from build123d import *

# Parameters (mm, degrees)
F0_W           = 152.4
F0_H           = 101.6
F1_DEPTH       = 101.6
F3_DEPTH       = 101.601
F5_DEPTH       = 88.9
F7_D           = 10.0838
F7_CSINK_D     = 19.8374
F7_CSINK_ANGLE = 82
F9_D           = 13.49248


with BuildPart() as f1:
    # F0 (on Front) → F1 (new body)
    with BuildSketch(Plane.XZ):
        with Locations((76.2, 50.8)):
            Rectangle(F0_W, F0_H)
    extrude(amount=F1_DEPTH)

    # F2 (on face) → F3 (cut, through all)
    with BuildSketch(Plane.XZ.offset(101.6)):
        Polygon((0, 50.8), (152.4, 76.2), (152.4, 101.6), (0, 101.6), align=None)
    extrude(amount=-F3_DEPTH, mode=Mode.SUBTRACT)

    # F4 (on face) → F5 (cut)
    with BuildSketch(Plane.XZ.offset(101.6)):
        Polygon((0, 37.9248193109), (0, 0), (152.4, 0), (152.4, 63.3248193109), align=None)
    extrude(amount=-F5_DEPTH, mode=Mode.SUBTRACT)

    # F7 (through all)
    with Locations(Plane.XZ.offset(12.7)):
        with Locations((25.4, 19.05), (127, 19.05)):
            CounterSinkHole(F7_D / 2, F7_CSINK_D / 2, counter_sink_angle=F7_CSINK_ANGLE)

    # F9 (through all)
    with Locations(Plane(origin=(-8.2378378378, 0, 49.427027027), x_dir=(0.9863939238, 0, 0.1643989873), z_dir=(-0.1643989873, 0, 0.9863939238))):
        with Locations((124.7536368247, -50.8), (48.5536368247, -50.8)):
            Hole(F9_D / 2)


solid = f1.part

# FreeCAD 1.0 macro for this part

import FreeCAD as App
import Part
import Sketcher
Q = App.Units.Quantity

doc = App.newDocument("Part")
body = doc.addObject("PartDesign::Body", "Body")

# Sketch on XZ plane
sketch1 = body.newObject("Sketcher::SketchObject", "Sketch")
sketch1.AttachmentSupport = (doc.getObject("XZ_Plane"), [""])
sketch1.MapMode = "FlatFace"
sketch1.addGeometry(Part.LineSegment(App.Vector(0, 102, 0), App.Vector(0, 0, 0)), False)
sketch1.addGeometry(Part.LineSegment(App.Vector(0, 0, 0), App.Vector(152, 0, 0)), False)
sketch1.addGeometry(Part.LineSegment(App.Vector(152, 0, 0), App.Vector(152, 102, 0)), False)
sketch1.addGeometry(Part.LineSegment(App.Vector(152, 102, 0), App.Vector(0, 102, 0)), False)
sketch1.addConstraint(Sketcher.Constraint("Coincident", 0, 2, 1, 1))
sketch1.addConstraint(Sketcher.Constraint("Coincident", 1, 2, 2, 1))
sketch1.addConstraint(Sketcher.Constraint("Coincident", 2, 2, 3, 1))
sketch1.addConstraint(Sketcher.Constraint("Coincident", 3, 2, 0, 1))
sketch1.addConstraint(Sketcher.Constraint("Vertical", 0))
sketch1.addConstraint(Sketcher.Constraint("Horizontal", 1))
sketch1.addConstraint(Sketcher.Constraint("Vertical", 2))
sketch1.addConstraint(Sketcher.Constraint("Horizontal", 3))
sketch1.addConstraint(Sketcher.Constraint("Coincident", 0, 2, -1, 1))
sketch1.addConstraint(Sketcher.Constraint("DistanceX", 1, 1, 1, 2, Q("6 in")))
sketch1.addConstraint(Sketcher.Constraint("DistanceY", 0, 2, 0, 1, Q("4 in")))
pad1 = body.newObject("PartDesign::Pad", "Pad")
pad1.Profile = sketch1
pad1.Length = Q("4 in")

# Sketch on XZ plane
sketch2 = body.newObject("Sketcher::SketchObject", "Sketch001")
sketch2.AttachmentSupport = (doc.getObject("XZ_Plane"), [""])
sketch2.MapMode = "FlatFace"
sketch2.AttachmentOffset = App.Placement(App.Vector(0, 0, 4 * 25.4), App.Rotation())
sketch2.addGeometry(Part.LineSegment(App.Vector(0, 51, 0), App.Vector(152, 76, 0)), False)
sketch2.addGeometry(Part.LineSegment(App.Vector(152, 76, 0), App.Vector(152, 102, 0)), False)
sketch2.addGeometry(Part.LineSegment(App.Vector(152, 102, 0), App.Vector(0, 102, 0)), False)
sketch2.addGeometry(Part.LineSegment(App.Vector(0, 102, 0), App.Vector(0, 51, 0)), False)
sketch2.addConstraint(Sketcher.Constraint("Coincident", 0, 2, 1, 1))
sketch2.addConstraint(Sketcher.Constraint("Coincident", 1, 2, 2, 1))
sketch2.addConstraint(Sketcher.Constraint("Coincident", 2, 2, 3, 1))
sketch2.addConstraint(Sketcher.Constraint("Coincident", 3, 2, 0, 1))
sketch2.addConstraint(Sketcher.Constraint("Vertical", 1))
sketch2.addConstraint(Sketcher.Constraint("Horizontal", 2))
sketch2.addConstraint(Sketcher.Constraint("Vertical", 3))
sketch2.addConstraint(Sketcher.Constraint("PointOnObject", 2, 2, -2))
sketch2.addConstraint(Sketcher.Constraint("DistanceX", 2, 2, 2, 1, Q("6 in")))
sketch2.addConstraint(Sketcher.Constraint("DistanceY", 1, 1, 1, 2, Q("1 in")))
sketch2.addConstraint(Sketcher.Constraint("DistanceY", 3, 2, 3, 1, Q("2 in")))
sketch2.addConstraint(Sketcher.Constraint("DistanceY", -1, 1, 0, 2, Q("3 in")))
pocket1 = body.newObject("PartDesign::Pocket", "Pocket")
pocket1.Profile = sketch2
pocket1.Type = "ThroughAll"

# Sketch on XZ plane
sketch3 = body.newObject("Sketcher::SketchObject", "Sketch002")
sketch3.AttachmentSupport = (doc.getObject("XZ_Plane"), [""])
sketch3.MapMode = "FlatFace"
sketch3.AttachmentOffset = App.Placement(App.Vector(0, 0, 4 * 25.4), App.Rotation())
sketch3.addGeometry(Part.LineSegment(App.Vector(0, 38, 0), App.Vector(0, 0, 0)), False)
sketch3.addGeometry(Part.LineSegment(App.Vector(0, 0, 0), App.Vector(152, 0, 0)), False)
sketch3.addGeometry(Part.LineSegment(App.Vector(152, 0, 0), App.Vector(152, 63, 0)), False)
sketch3.addGeometry(Part.LineSegment(App.Vector(152, 63, 0), App.Vector(0, 38, 0)), False)
sketch3.addConstraint(Sketcher.Constraint("Coincident", 0, 2, 1, 1))
sketch3.addConstraint(Sketcher.Constraint("Coincident", 1, 2, 2, 1))
sketch3.addConstraint(Sketcher.Constraint("Coincident", 2, 2, 3, 1))
sketch3.addConstraint(Sketcher.Constraint("Coincident", 3, 2, 0, 1))
sketch3.addConstraint(Sketcher.Constraint("Vertical", 0))
sketch3.addConstraint(Sketcher.Constraint("Horizontal", 1))
sketch3.addConstraint(Sketcher.Constraint("Vertical", 2))
sketch3.addConstraint(Sketcher.Constraint("Coincident", 0, 2, -1, 1))
sketch3.addConstraint(Sketcher.Constraint("DistanceX", 1, 1, 1, 2, Q("6 in")))
sketch3.addConstraint(Sketcher.Constraint("DistanceY", 3, 2, 2, 2, Q("1 in")))
sketch3.addConstraint(Sketcher.Constraint("DistanceY", 0, 2, 0, 1, 37.924819))
pocket2 = body.newObject("PartDesign::Pocket", "Pocket001")
pocket2.Profile = sketch3
pocket2.Length = Q("3.5 in")

# Sketch on XZ plane
sketch4 = body.newObject("Sketcher::SketchObject", "Sketch003")
sketch4.AttachmentSupport = (doc.getObject("XZ_Plane"), [""])
sketch4.MapMode = "FlatFace"
sketch4.AttachmentOffset = App.Placement(App.Vector(0, 0, 0.5 * 25.4), App.Rotation())
sketch4.addGeometry(Part.Circle(App.Vector(25, 19, 0), App.Vector(0, 0, 1), 5), False)
sketch4.addGeometry(Part.Circle(App.Vector(127, 19, 0), App.Vector(0, 0, 1), 5), False)
sketch4.addConstraint(Sketcher.Constraint("Equal", 0, 1))
sketch4.addConstraint(Sketcher.Constraint("Horizontal", 0, 3, 1, 3))
sketch4.addConstraint(Sketcher.Constraint("Diameter", 0, Q("0.397 in")))
sketch4.addConstraint(Sketcher.Constraint("DistanceX", -1, 1, 0, 3, Q("1 in")))
sketch4.addConstraint(Sketcher.Constraint("DistanceX", -1, 1, 1, 3, Q("5 in")))
sketch4.addConstraint(Sketcher.Constraint("DistanceY", -1, 1, 0, 3, Q("0.75 in")))
doc.recompute()
hole = body.newObject("PartDesign::Hole", "Hole")
hole.Profile = sketch4
hole.ThreadType = "None"
hole.Diameter = Q("0.397 in")
hole.DepthType = "ThroughAll"
hole.HoleCutType = "Countersink"
hole.HoleCutDiameter = Q("0.781 in")
hole.HoleCutCountersinkAngle = 82

# Sketch on an angled plane
sketch5 = body.newObject("Sketcher::SketchObject", "Sketch004")
sketch5.Placement = App.Placement(App.Vector(-8.237838, 0, 49.427027), App.Rotation(App.Vector(0.986393924, 0, 0.164398987), App.Vector(0, 1, 0), App.Vector(-0.164398987, 0, 0.986393924), "ZXY"))
sketch5.addGeometry(Part.Circle(App.Vector(125, -51, 0), App.Vector(0, 0, 1), 7), False)
sketch5.addGeometry(Part.Circle(App.Vector(49, -51, 0), App.Vector(0, 0, 1), 7), False)
sketch5.addConstraint(Sketcher.Constraint("Equal", 0, 1))
sketch5.addConstraint(Sketcher.Constraint("Horizontal", 0, 3, 1, 3))
sketch5.addConstraint(Sketcher.Constraint("DistanceY", 0, 3, -1, 1, Q("2 in")))
sketch5.addConstraint(Sketcher.Constraint("DistanceX", 1, 3, 0, 3, Q("3 in")))
sketch5.addConstraint(Sketcher.Constraint("Diameter", 0, Q("0.5312 in")))
sketch5.addConstraint(Sketcher.Constraint("DistanceX", -1, 1, 0, 3, 124.753637))
doc.recompute()
hole2 = body.newObject("PartDesign::Hole", "Hole001")
hole2.Profile = sketch5
hole2.ThreadType = "None"
hole2.Diameter = Q("0.5312 in")
hole2.DepthType = "ThroughAll"

doc.recompute()
